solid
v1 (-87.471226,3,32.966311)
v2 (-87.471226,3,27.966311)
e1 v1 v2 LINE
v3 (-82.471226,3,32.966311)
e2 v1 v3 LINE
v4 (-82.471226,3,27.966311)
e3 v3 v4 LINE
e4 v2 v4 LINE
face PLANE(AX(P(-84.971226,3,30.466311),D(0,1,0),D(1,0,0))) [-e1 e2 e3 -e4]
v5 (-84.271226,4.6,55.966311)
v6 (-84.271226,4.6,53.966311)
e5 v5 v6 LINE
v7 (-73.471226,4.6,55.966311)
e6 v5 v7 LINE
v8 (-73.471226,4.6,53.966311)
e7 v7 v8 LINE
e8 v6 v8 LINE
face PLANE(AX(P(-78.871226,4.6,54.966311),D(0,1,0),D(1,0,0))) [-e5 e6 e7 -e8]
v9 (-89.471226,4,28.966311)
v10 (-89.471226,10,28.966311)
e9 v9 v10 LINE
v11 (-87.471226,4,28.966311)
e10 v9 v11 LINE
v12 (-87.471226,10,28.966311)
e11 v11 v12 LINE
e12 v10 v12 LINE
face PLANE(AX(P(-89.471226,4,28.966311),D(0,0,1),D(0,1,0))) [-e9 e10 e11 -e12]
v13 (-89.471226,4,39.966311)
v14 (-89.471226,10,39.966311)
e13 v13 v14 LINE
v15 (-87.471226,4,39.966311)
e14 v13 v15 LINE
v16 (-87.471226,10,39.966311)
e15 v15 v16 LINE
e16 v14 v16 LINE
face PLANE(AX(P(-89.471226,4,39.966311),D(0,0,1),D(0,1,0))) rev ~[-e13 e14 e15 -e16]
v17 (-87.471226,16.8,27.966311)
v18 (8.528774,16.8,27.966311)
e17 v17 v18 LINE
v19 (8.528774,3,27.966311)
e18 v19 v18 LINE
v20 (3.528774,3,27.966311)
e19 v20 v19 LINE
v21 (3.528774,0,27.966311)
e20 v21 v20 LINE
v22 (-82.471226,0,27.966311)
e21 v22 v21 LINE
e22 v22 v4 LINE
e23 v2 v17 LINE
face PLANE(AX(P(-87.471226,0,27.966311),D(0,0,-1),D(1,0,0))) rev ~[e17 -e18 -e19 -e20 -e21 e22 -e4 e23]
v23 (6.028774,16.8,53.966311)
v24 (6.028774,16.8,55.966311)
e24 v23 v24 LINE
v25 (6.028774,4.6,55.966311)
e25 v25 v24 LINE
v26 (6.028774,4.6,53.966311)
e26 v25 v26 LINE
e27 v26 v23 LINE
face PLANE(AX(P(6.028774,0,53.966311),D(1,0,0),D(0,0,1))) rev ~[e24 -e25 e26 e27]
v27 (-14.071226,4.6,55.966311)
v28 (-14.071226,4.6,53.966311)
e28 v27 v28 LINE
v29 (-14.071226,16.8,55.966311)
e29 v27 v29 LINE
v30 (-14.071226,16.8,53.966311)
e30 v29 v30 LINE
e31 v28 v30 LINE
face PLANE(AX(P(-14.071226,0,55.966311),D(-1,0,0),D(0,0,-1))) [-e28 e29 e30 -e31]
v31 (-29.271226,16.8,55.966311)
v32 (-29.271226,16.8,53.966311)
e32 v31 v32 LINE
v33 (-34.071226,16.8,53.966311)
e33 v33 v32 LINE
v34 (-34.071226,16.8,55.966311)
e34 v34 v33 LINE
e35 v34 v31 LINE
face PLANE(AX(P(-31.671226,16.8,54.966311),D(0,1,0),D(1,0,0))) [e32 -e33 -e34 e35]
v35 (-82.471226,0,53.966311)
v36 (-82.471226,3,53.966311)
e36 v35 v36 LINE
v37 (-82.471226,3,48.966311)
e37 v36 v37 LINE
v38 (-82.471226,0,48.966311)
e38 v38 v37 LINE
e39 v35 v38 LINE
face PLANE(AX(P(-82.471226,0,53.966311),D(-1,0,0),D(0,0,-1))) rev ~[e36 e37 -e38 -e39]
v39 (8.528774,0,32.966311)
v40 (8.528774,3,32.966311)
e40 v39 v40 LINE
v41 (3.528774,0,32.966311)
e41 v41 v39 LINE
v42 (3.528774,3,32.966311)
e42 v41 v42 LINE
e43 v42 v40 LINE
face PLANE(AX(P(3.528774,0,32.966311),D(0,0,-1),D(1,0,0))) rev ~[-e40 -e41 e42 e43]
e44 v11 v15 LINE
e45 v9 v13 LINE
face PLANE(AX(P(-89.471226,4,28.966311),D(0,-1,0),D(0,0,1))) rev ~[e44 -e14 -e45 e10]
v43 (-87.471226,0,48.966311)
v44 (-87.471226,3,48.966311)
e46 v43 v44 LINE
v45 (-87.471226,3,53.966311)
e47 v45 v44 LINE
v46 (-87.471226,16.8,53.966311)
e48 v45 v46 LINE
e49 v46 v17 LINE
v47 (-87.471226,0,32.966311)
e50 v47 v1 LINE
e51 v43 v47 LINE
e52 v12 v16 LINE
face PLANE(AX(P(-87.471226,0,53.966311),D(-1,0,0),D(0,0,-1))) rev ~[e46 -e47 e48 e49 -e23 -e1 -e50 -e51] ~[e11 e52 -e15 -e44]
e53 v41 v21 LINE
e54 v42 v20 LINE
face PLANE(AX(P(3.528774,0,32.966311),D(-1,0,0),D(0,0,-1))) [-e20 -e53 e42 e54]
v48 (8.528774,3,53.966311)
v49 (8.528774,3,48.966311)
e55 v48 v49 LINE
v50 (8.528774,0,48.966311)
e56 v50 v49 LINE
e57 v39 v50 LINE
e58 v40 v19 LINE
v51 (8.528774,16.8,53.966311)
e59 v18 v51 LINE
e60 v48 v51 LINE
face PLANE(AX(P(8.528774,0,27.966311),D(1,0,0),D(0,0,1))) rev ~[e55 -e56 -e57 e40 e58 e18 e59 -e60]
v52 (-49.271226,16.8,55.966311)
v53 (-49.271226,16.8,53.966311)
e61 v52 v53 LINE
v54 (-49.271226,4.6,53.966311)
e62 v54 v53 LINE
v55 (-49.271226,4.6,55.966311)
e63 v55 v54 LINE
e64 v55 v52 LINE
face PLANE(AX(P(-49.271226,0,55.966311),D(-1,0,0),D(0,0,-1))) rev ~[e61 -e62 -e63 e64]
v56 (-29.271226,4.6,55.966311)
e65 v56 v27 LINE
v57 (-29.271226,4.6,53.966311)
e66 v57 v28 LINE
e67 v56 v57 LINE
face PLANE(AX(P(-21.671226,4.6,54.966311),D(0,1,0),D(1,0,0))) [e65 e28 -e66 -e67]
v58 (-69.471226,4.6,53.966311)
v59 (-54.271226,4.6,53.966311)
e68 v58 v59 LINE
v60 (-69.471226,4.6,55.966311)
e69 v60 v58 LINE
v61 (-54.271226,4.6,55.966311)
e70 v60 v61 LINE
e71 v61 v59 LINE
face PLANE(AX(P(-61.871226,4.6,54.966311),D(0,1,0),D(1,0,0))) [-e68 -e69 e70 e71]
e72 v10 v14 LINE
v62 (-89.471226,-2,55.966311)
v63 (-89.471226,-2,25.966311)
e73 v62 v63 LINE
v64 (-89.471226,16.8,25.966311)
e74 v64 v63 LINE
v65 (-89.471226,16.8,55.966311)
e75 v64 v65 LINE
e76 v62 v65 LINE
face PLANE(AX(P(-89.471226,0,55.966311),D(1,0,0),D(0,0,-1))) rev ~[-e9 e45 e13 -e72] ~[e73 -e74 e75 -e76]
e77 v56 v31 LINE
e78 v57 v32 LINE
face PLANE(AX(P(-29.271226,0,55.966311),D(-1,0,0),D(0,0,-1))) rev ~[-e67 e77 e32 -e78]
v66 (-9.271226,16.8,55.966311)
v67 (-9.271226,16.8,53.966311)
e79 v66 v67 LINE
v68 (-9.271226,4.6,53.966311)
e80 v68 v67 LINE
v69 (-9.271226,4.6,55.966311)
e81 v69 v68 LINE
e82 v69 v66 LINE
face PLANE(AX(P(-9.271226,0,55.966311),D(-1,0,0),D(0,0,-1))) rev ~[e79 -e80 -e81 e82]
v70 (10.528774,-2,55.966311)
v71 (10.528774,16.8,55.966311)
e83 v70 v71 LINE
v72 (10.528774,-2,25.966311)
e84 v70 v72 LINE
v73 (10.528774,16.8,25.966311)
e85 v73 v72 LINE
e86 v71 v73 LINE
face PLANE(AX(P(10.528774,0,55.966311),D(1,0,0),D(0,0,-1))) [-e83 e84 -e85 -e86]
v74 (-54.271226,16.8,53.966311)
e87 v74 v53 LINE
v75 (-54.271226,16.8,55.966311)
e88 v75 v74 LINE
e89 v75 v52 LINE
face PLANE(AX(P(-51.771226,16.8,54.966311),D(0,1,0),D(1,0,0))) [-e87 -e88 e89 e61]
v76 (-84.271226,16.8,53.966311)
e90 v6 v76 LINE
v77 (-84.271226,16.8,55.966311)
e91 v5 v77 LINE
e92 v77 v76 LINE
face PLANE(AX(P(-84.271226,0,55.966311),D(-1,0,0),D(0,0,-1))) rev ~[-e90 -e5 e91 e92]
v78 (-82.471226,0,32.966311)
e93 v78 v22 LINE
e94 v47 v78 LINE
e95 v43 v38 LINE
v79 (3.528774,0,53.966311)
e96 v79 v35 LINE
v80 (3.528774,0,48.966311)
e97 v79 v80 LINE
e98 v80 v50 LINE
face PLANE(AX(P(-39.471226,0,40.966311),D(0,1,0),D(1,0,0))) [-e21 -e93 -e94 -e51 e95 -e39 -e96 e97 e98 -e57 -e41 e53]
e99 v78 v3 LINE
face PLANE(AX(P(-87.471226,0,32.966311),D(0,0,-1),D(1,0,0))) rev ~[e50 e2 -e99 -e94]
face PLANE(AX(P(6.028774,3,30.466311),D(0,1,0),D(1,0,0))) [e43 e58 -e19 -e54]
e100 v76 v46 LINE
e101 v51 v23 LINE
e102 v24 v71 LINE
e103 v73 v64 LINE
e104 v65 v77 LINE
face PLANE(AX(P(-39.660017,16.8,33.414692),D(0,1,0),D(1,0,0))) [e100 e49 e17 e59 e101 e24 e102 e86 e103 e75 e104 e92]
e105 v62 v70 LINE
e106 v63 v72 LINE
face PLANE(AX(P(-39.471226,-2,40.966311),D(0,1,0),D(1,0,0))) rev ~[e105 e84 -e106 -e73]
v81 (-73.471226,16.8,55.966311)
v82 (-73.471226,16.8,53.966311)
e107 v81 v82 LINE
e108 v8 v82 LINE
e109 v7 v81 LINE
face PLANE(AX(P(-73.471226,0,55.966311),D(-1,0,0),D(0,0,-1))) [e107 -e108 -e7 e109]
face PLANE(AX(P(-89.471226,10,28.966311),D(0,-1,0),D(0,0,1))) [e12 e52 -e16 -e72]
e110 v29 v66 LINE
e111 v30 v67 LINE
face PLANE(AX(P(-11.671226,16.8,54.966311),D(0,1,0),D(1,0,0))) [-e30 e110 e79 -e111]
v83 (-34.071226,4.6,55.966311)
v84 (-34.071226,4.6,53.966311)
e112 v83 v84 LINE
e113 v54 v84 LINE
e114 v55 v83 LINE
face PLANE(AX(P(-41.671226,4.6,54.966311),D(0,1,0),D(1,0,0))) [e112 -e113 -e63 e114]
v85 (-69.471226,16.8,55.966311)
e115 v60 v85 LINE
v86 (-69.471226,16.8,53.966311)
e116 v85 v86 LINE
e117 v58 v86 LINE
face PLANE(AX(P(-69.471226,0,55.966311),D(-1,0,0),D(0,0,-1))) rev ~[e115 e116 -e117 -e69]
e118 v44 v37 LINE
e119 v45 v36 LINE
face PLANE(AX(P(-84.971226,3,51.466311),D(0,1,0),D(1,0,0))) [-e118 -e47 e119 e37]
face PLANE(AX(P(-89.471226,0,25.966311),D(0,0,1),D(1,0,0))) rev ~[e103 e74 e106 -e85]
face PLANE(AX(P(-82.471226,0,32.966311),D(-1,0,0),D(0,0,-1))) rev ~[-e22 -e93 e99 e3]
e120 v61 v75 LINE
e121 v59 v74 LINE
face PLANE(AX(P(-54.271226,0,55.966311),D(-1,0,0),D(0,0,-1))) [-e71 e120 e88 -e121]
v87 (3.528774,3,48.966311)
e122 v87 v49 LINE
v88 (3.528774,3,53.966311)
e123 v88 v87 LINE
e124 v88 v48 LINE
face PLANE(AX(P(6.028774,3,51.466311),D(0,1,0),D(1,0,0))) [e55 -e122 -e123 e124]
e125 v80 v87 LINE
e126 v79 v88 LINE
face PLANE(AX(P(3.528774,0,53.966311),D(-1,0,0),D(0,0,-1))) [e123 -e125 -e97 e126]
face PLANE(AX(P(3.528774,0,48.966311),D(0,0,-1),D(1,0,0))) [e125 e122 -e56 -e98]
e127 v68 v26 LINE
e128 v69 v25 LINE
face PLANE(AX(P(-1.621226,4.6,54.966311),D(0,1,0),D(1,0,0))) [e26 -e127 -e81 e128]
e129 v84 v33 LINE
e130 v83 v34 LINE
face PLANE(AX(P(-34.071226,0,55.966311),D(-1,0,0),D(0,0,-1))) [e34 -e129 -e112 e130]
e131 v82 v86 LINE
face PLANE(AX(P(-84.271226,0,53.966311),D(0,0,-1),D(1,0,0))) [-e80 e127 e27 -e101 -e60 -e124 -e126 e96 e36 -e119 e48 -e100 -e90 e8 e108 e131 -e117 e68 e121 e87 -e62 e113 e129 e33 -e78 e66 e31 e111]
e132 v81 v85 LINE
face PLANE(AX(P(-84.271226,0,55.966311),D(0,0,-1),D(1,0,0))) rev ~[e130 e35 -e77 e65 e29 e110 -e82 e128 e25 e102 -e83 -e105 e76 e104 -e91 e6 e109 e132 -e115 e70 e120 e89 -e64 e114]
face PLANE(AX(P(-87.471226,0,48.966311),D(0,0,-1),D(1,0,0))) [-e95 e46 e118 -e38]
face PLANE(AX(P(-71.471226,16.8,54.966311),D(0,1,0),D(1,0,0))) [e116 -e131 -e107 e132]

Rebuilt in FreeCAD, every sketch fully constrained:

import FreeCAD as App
import Part
import Sketcher

doc = App.newDocument("Part")
body = doc.addObject("PartDesign::Body", "Body")

# Sketch on XZ plane
sketch1 = body.newObject("Sketcher::SketchObject", "Sketch")
sketch1.AttachmentSupport = (doc.getObject("XZ_Plane"), [""])
sketch1.MapMode = "FlatFace"
sketch1.addGeometry(Part.LineSegment(App.Vector(-87.5, 28, 0), App.Vector(8.5, 28, 0)), False)
sketch1.addGeometry(Part.LineSegment(App.Vector(8.5, 28, 0), App.Vector(8.5, 54, 0)), False)
sketch1.addGeometry(Part.LineSegment(App.Vector(8.5, 54, 0), App.Vector(6, 54, 0)), False)
sketch1.addGeometry(Part.LineSegment(App.Vector(6, 54, 0), App.Vector(6, 56, 0)), False)
sketch1.addGeometry(Part.LineSegment(App.Vector(6, 56, 0), App.Vector(10.5, 56, 0)), False)
sketch1.addGeometry(Part.LineSegment(App.Vector(10.5, 56, 0), App.Vector(10.5, 26, 0)), False)
sketch1.addGeometry(Part.LineSegment(App.Vector(10.5, 26, 0), App.Vector(-89.5, 26, 0)), False)
sketch1.addGeometry(Part.LineSegment(App.Vector(-89.5, 26, 0), App.Vector(-89.5, 56, 0)), False)
sketch1.addGeometry(Part.LineSegment(App.Vector(-89.5, 56, 0), App.Vector(-84.3, 56, 0)), False)
sketch1.addGeometry(Part.LineSegment(App.Vector(-84.3, 56, 0), App.Vector(-84.3, 54, 0)), False)
sketch1.addGeometry(Part.LineSegment(App.Vector(-84.3, 54, 0), App.Vector(-87.5, 54, 0)), False)
sketch1.addGeometry(Part.LineSegment(App.Vector(-87.5, 54, 0), App.Vector(-87.5, 28, 0)), False)
sketch1.addConstraint(Sketcher.Constraint("Coincident", 0, 2, 1, 1))
sketch1.addConstraint(Sketcher.Constraint("Coincident", 1, 2, 2, 1))
sketch1.addConstraint(Sketcher.Constraint("Coincident", 2, 2, 3, 1))
sketch1.addConstraint(Sketcher.Constraint("Coincident", 3, 2, 4, 1))
sketch1.addConstraint(Sketcher.Constraint("Coincident", 4, 2, 5, 1))
sketch1.addConstraint(Sketcher.Constraint("Coincident", 5, 2, 6, 1))
sketch1.addConstraint(Sketcher.Constraint("Coincident", 6, 2, 7, 1))
sketch1.addConstraint(Sketcher.Constraint("Coincident", 7, 2, 8, 1))
sketch1.addConstraint(Sketcher.Constraint("Coincident", 8, 2, 9, 1))
sketch1.addConstraint(Sketcher.Constraint("Coincident", 9, 2, 10, 1))
sketch1.addConstraint(Sketcher.Constraint("Coincident", 10, 2, 11, 1))
sketch1.addConstraint(Sketcher.Constraint("Coincident", 11, 2, 0, 1))
sketch1.addConstraint(Sketcher.Constraint("Horizontal", 0))
sketch1.addConstraint(Sketcher.Constraint("Vertical", 1))
sketch1.addConstraint(Sketcher.Constraint("Horizontal", 2))
sketch1.addConstraint(Sketcher.Constraint("Vertical", 3))
sketch1.addConstraint(Sketcher.Constraint("Horizontal", 4))
sketch1.addConstraint(Sketcher.Constraint("Vertical", 5))
sketch1.addConstraint(Sketcher.Constraint("Horizontal", 6))
sketch1.addConstraint(Sketcher.Constraint("Vertical", 7))
sketch1.addConstraint(Sketcher.Constraint("Horizontal", 8))
sketch1.addConstraint(Sketcher.Constraint("Vertical", 9))
sketch1.addConstraint(Sketcher.Constraint("Horizontal", 10))
sketch1.addConstraint(Sketcher.Constraint("Vertical", 11))
sketch1.addConstraint(Sketcher.Constraint("Horizontal", 4, 2, 7, 2))
sketch1.addConstraint(Sketcher.Constraint("Horizontal", 2, 2, 9, 2))
sketch1.addConstraint(Sketcher.Constraint("DistanceX", 0, 1, 0, 2, 96.0))
sketch1.addConstraint(Sketcher.Constraint("DistanceX", 6, 2, 6, 1, 100.0))
sketch1.addConstraint(Sketcher.Constraint("DistanceY", 1, 1, 1, 2, 26.0))
sketch1.addConstraint(Sketcher.Constraint("DistanceY", 3, 1, 3, 2, 2.0))
sketch1.addConstraint(Sketcher.Constraint("DistanceY", 5, 2, 5, 1, 30.0))
sketch1.addConstraint(Sketcher.Constraint("DistanceX", 2, 2, 2, 1, 2.5))
sketch1.addConstraint(Sketcher.Constraint("DistanceX", 4, 1, 4, 2, 4.5))
sketch1.addConstraint(Sketcher.Constraint("DistanceX", 8, 1, 8, 2, 5.2))
sketch1.addConstraint(Sketcher.Constraint("DistanceY", -1, 1, 0, 2, 27.966311))
sketch1.addConstraint(Sketcher.Constraint("DistanceX", -1, 1, 0, 2, 8.528774))
pad1 = body.newObject("PartDesign::Pad", "Pad")
pad1.Profile = sketch1
pad1.Length = 16.8
pad1.Reversed = True
body2 = doc.addObject("PartDesign::Body", "Body001")

# Sketch on XZ plane
sketch2 = body2.newObject("Sketcher::SketchObject", "Sketch001")
sketch2.AttachmentSupport = (doc.getObject("XZ_Plane001"), [""])
sketch2.MapMode = "FlatFace"
sketch2.addGeometry(Part.LineSegment(App.Vector(-73.5, 54, 0), App.Vector(-73.5, 56, 0)), False)
sketch2.addGeometry(Part.LineSegment(App.Vector(-73.5, 56, 0), App.Vector(-69.5, 56, 0)), False)
sketch2.addGeometry(Part.LineSegment(App.Vector(-69.5, 56, 0), App.Vector(-69.5, 54, 0)), False)
sketch2.addGeometry(Part.LineSegment(App.Vector(-69.5, 54, 0), App.Vector(-73.5, 54, 0)), False)
sketch2.addConstraint(Sketcher.Constraint("Coincident", 0, 2, 1, 1))
sketch2.addConstraint(Sketcher.Constraint("Coincident", 1, 2, 2, 1))
sketch2.addConstraint(Sketcher.Constraint("Coincident", 2, 2, 3, 1))
sketch2.addConstraint(Sketcher.Constraint("Coincident", 3, 2, 0, 1))
sketch2.addConstraint(Sketcher.Constraint("Vertical", 0))
sketch2.addConstraint(Sketcher.Constraint("Horizontal", 1))
sketch2.addConstraint(Sketcher.Constraint("Vertical", 2))
sketch2.addConstraint(Sketcher.Constraint("Horizontal", 3))
sketch2.addConstraint(Sketcher.Constraint("DistanceX", 1, 1, 1, 2, 4.0))
sketch2.addConstraint(Sketcher.Constraint("DistanceY", 0, 1, 0, 2, 2.0))
sketch2.addConstraint(Sketcher.Constraint("DistanceY", -1, 1, 0, 2, 55.966311))
sketch2.addConstraint(Sketcher.Constraint("DistanceX", 0, 2, -1, 1, 73.471226))
pad2 = body2.newObject("PartDesign::Pad", "Pad001")
pad2.Profile = sketch2
pad2.Length = 16.8
pad2.Reversed = True
body3 = doc.addObject("PartDesign::Body", "Body002")

# Sketch on XZ plane
sketch3 = body3.newObject("Sketcher::SketchObject", "Sketch002")
sketch3.AttachmentSupport = (doc.getObject("XZ_Plane002"), [""])
sketch3.MapMode = "FlatFace"
sketch3.addGeometry(Part.LineSegment(App.Vector(-54.3, 54, 0), App.Vector(-54.3, 56, 0)), False)
sketch3.addGeometry(Part.LineSegment(App.Vector(-54.3, 56, 0), App.Vector(-49.3, 56, 0)), False)
sketch3.addGeometry(Part.LineSegment(App.Vector(-49.3, 56, 0), App.Vector(-49.3, 54, 0)), False)
sketch3.addGeometry(Part.LineSegment(App.Vector(-49.3, 54, 0), App.Vector(-54.3, 54, 0)), False)
sketch3.addConstraint(Sketcher.Constraint("Coincident", 0, 2, 1, 1))
sketch3.addConstraint(Sketcher.Constraint("Coincident", 1, 2, 2, 1))
sketch3.addConstraint(Sketcher.Constraint("Coincident", 2, 2, 3, 1))
sketch3.addConstraint(Sketcher.Constraint("Coincident", 3, 2, 0, 1))
sketch3.addConstraint(Sketcher.Constraint("Vertical", 0))
sketch3.addConstraint(Sketcher.Constraint("Horizontal", 1))
sketch3.addConstraint(Sketcher.Constraint("Vertical", 2))
sketch3.addConstraint(Sketcher.Constraint("Horizontal", 3))
sketch3.addConstraint(Sketcher.Constraint("DistanceX", 1, 1, 1, 2, 5.0))
sketch3.addConstraint(Sketcher.Constraint("DistanceY", 0, 1, 0, 2, 2.0))
sketch3.addConstraint(Sketcher.Constraint("DistanceY", -1, 1, 0, 2, 55.966311))
sketch3.addConstraint(Sketcher.Constraint("DistanceX", 0, 2, -1, 1, 54.271226))
pad3 = body3.newObject("PartDesign::Pad", "Pad002")
pad3.Profile = sketch3
pad3.Length = 16.8
pad3.Reversed = True
body4 = doc.addObject("PartDesign::Body", "Body003")

# Sketch on XZ plane
sketch4 = body4.newObject("Sketcher::SketchObject", "Sketch003")
sketch4.AttachmentSupport = (doc.getObject("XZ_Plane003"), [""])
sketch4.MapMode = "FlatFace"
sketch4.addGeometry(Part.LineSegment(App.Vector(-34.1, 54, 0), App.Vector(-34.1, 56, 0)), False)
sketch4.addGeometry(Part.LineSegment(App.Vector(-34.1, 56, 0), App.Vector(-29.3, 56, 0)), False)
sketch4.addGeometry(Part.LineSegment(App.Vector(-29.3, 56, 0), App.Vector(-29.3, 54, 0)), False)
sketch4.addGeometry(Part.LineSegment(App.Vector(-29.3, 54, 0), App.Vector(-34.1, 54, 0)), False)
sketch4.addConstraint(Sketcher.Constraint("Coincident", 0, 2, 1, 1))
sketch4.addConstraint(Sketcher.Constraint("Coincident", 1, 2, 2, 1))
sketch4.addConstraint(Sketcher.Constraint("Coincident", 2, 2, 3, 1))
sketch4.addConstraint(Sketcher.Constraint("Coincident", 3, 2, 0, 1))
sketch4.addConstraint(Sketcher.Constraint("Vertical", 0))
sketch4.addConstraint(Sketcher.Constraint("Horizontal", 1))
sketch4.addConstraint(Sketcher.Constraint("Vertical", 2))
sketch4.addConstraint(Sketcher.Constraint("Horizontal", 3))
sketch4.addConstraint(Sketcher.Constraint("DistanceY", 0, 1, 0, 2, 2.0))
sketch4.addConstraint(Sketcher.Constraint("DistanceX", 1, 1, 1, 2, 4.8))
sketch4.addConstraint(Sketcher.Constraint("DistanceY", -1, 1, 0, 2, 55.966311))
sketch4.addConstraint(Sketcher.Constraint("DistanceX", 0, 2, -1, 1, 34.071226))
pad4 = body4.newObject("PartDesign::Pad", "Pad003")
pad4.Profile = sketch4
pad4.Length = 16.8
pad4.Reversed = True
body5 = doc.addObject("PartDesign::Body", "Body004")

# Sketch on XZ plane
sketch5 = body5.newObject("Sketcher::SketchObject", "Sketch004")
sketch5.AttachmentSupport = (doc.getObject("XZ_Plane004"), [""])
sketch5.MapMode = "FlatFace"
sketch5.addGeometry(Part.LineSegment(App.Vector(-14.1, 54, 0), App.Vector(-14.1, 56, 0)), False)
sketch5.addGeometry(Part.LineSegment(App.Vector(-14.1, 56, 0), App.Vector(-9.3, 56, 0)), False)
sketch5.addGeometry(Part.LineSegment(App.Vector(-9.3, 56, 0), App.Vector(-9.3, 54, 0)), False)
sketch5.addGeometry(Part.LineSegment(App.Vector(-9.3, 54, 0), App.Vector(-14.1, 54, 0)), False)
sketch5.addConstraint(Sketcher.Constraint("Coincident", 0, 2, 1, 1))
sketch5.addConstraint(Sketcher.Constraint("Coincident", 1, 2, 2, 1))
sketch5.addConstraint(Sketcher.Constraint("Coincident", 2, 2, 3, 1))
sketch5.addConstraint(Sketcher.Constraint("Coincident", 3, 2, 0, 1))
sketch5.addConstraint(Sketcher.Constraint("Vertical", 0))
sketch5.addConstraint(Sketcher.Constraint("Horizontal", 1))
sketch5.addConstraint(Sketcher.Constraint("Vertical", 2))
sketch5.addConstraint(Sketcher.Constraint("Horizontal", 3))
sketch5.addConstraint(Sketcher.Constraint("DistanceY", 0, 1, 0, 2, 2.0))
sketch5.addConstraint(Sketcher.Constraint("DistanceX", 1, 1, 1, 2, 4.8))
sketch5.addConstraint(Sketcher.Constraint("DistanceY", -1, 1, 0, 2, 55.966311))
sketch5.addConstraint(Sketcher.Constraint("DistanceX", 0, 2, -1, 1, 14.071226))
pad5 = body5.newObject("PartDesign::Pad", "Pad004")
pad5.Profile = sketch5
pad5.Length = 16.8
pad5.Reversed = True
body.AllowCompound = True
doc.recompute()

boolean = body.newObject("PartDesign::Boolean", "Boolean")
boolean.Type = "Fuse"
boolean.addObjects([body2])
doc.recompute()

boolean2 = body.newObject("PartDesign::Boolean", "Boolean001")
boolean2.Type = "Fuse"
boolean2.addObjects([body3])
doc.recompute()

boolean3 = body.newObject("PartDesign::Boolean", "Boolean002")
boolean3.Type = "Fuse"
boolean3.addObjects([body4])
doc.recompute()

boolean4 = body.newObject("PartDesign::Boolean", "Boolean003")
boolean4.Type = "Fuse"
boolean4.addObjects([body5])

# Sketch on XZ plane
sketch6 = body.newObject("Sketcher::SketchObject", "Sketch005")
sketch6.AttachmentSupport = (doc.getObject("XZ_Plane"), [""])
sketch6.MapMode = "FlatFace"
sketch6.addGeometry(Part.LineSegment(App.Vector(-89, 26, 0), App.Vector(-89, 56, 0)), False)
sketch6.addGeometry(Part.LineSegment(App.Vector(-89, 56, 0), App.Vector(11, 56, 0)), False)
sketch6.addGeometry(Part.LineSegment(App.Vector(11, 56, 0), App.Vector(11, 26, 0)), False)
sketch6.addGeometry(Part.LineSegment(App.Vector(11, 26, 0), App.Vector(-89, 26, 0)), False)
sketch6.addConstraint(Sketcher.Constraint("Coincident", 0, 2, 1, 1))
sketch6.addConstraint(Sketcher.Constraint("Coincident", 1, 2, 2, 1))
sketch6.addConstraint(Sketcher.Constraint("Coincident", 2, 2, 3, 1))
sketch6.addConstraint(Sketcher.Constraint("Coincident", 3, 2, 0, 1))
sketch6.addConstraint(Sketcher.Constraint("Vertical", 0))
sketch6.addConstraint(Sketcher.Constraint("Horizontal", 1))
sketch6.addConstraint(Sketcher.Constraint("Vertical", 2))
sketch6.addConstraint(Sketcher.Constraint("Horizontal", 3))
sketch6.addConstraint(Sketcher.Constraint("DistanceX", 1, 1, 1, 2, 100.0))
sketch6.addConstraint(Sketcher.Constraint("DistanceY", 0, 1, 0, 2, 30.0))
sketch6.addConstraint(Sketcher.Constraint("DistanceY", -1, 1, 0, 2, 55.966311))
sketch6.addConstraint(Sketcher.Constraint("DistanceX", 0, 2, -1, 1, 89.471226))
pad6 = body.newObject("PartDesign::Pad", "Pad005")
pad6.Profile = sketch6
pad6.Length = 2

# Sketch on XZ plane
sketch7 = body.newObject("Sketcher::SketchObject", "Sketch006")
sketch7.AttachmentSupport = (doc.getObject("XZ_Plane"), [""])
sketch7.MapMode = "FlatFace"
sketch7.addGeometry(Part.LineSegment(App.Vector(-84.3, 54, 0), App.Vector(-84.3, 56, 0)), False)
sketch7.addGeometry(Part.LineSegment(App.Vector(-84.3, 56, 0), App.Vector(-73.5, 56, 0)), False)
sketch7.addGeometry(Part.LineSegment(App.Vector(-73.5, 56, 0), App.Vector(-73.5, 54, 0)), False)
sketch7.addGeometry(Part.LineSegment(App.Vector(-73.5, 54, 0), App.Vector(-84.3, 54, 0)), False)
sketch7.addGeometry(Part.LineSegment(App.Vector(-69.5, 54, 0), App.Vector(-69.5, 56, 0)), False)
sketch7.addGeometry(Part.LineSegment(App.Vector(-69.5, 56, 0), App.Vector(-54.3, 56, 0)), False)
sketch7.addGeometry(Part.LineSegment(App.Vector(-54.3, 56, 0), App.Vector(-54.3, 54, 0)), False)
sketch7.addGeometry(Part.LineSegment(App.Vector(-54.3, 54, 0), App.Vector(-69.5, 54, 0)), False)
sketch7.addGeometry(Part.LineSegment(App.Vector(-49.3, 54, 0), App.Vector(-49.3, 56, 0)), False)
sketch7.addGeometry(Part.LineSegment(App.Vector(-49.3, 56, 0), App.Vector(-34.1, 56, 0)), False)
sketch7.addGeometry(Part.LineSegment(App.Vector(-34.1, 56, 0), App.Vector(-34.1, 54, 0)), False)
sketch7.addGeometry(Part.LineSegment(App.Vector(-34.1, 54, 0), App.Vector(-49.3, 54, 0)), False)
sketch7.addGeometry(Part.LineSegment(App.Vector(-29.3, 54, 0), App.Vector(-29.3, 56, 0)), False)
sketch7.addGeometry(Part.LineSegment(App.Vector(-29.3, 56, 0), App.Vector(-14.1, 56, 0)), False)
sketch7.addGeometry(Part.LineSegment(App.Vector(-14.1, 56, 0), App.Vector(-14.1, 54, 0)), False)
sketch7.addGeometry(Part.LineSegment(App.Vector(-14.1, 54, 0), App.Vector(-29.3, 54, 0)), False)
sketch7.addGeometry(Part.LineSegment(App.Vector(-9.3, 54, 0), App.Vector(-9.3, 56, 0)), False)
sketch7.addGeometry(Part.LineSegment(App.Vector(-9.3, 56, 0), App.Vector(6, 56, 0)), False)
sketch7.addGeometry(Part.LineSegment(App.Vector(6, 56, 0), App.Vector(6, 54, 0)), False)
sketch7.addGeometry(Part.LineSegment(App.Vector(6, 54, 0), App.Vector(-9.3, 54, 0)), False)
sketch7.addConstraint(Sketcher.Constraint("Coincident", 0, 2, 1, 1))
sketch7.addConstraint(Sketcher.Constraint("Coincident", 1, 2, 2, 1))
sketch7.addConstraint(Sketcher.Constraint("Coincident", 2, 2, 3, 1))
sketch7.addConstraint(Sketcher.Constraint("Coincident", 3, 2, 0, 1))
sketch7.addConstraint(Sketcher.Constraint("Coincident", 4, 2, 5, 1))
sketch7.addConstraint(Sketcher.Constraint("Coincident", 5, 2, 6, 1))
sketch7.addConstraint(Sketcher.Constraint("Coincident", 6, 2, 7, 1))
sketch7.addConstraint(Sketcher.Constraint("Coincident", 7, 2, 4, 1))
sketch7.addConstraint(Sketcher.Constraint("Coincident", 8, 2, 9, 1))
sketch7.addConstraint(Sketcher.Constraint("Coincident", 9, 2, 10, 1))
sketch7.addConstraint(Sketcher.Constraint("Coincident", 10, 2, 11, 1))
sketch7.addConstraint(Sketcher.Constraint("Coincident", 11, 2, 8, 1))
sketch7.addConstraint(Sketcher.Constraint("Coincident", 12, 2, 13, 1))
sketch7.addConstraint(Sketcher.Constraint("Coincident", 13, 2, 14, 1))
sketch7.addConstraint(Sketcher.Constraint("Coincident", 14, 2, 15, 1))
sketch7.addConstraint(Sketcher.Constraint("Coincident", 15, 2, 12, 1))
sketch7.addConstraint(Sketcher.Constraint("Coincident", 16, 2, 17, 1))
sketch7.addConstraint(Sketcher.Constraint("Coincident", 17, 2, 18, 1))
sketch7.addConstraint(Sketcher.Constraint("Coincident", 18, 2, 19, 1))
sketch7.addConstraint(Sketcher.Constraint("Coincident", 19, 2, 16, 1))
sketch7.addConstraint(Sketcher.Constraint("Vertical", 0))
sketch7.addConstraint(Sketcher.Constraint("Horizontal", 1))
sketch7.addConstraint(Sketcher.Constraint("Vertical", 2))
sketch7.addConstraint(Sketcher.Constraint("Horizontal", 3))
sketch7.addConstraint(Sketcher.Constraint("Vertical", 4))
sketch7.addConstraint(Sketcher.Constraint("Horizontal", 5))
sketch7.addConstraint(Sketcher.Constraint("Vertical", 6))
sketch7.addConstraint(Sketcher.Constraint("Horizontal", 7))
sketch7.addConstraint(Sketcher.Constraint("Vertical", 8))
sketch7.addConstraint(Sketcher.Constraint("Horizontal", 9))
sketch7.addConstraint(Sketcher.Constraint("Vertical", 10))
sketch7.addConstraint(Sketcher.Constraint("Horizontal", 11))
sketch7.addConstraint(Sketcher.Constraint("Vertical", 12))
sketch7.addConstraint(Sketcher.Constraint("Horizontal", 13))
sketch7.addConstraint(Sketcher.Constraint("Vertical", 14))
sketch7.addConstraint(Sketcher.Constraint("Horizontal", 15))
sketch7.addConstraint(Sketcher.Constraint("Vertical", 16))
sketch7.addConstraint(Sketcher.Constraint("Horizontal", 17))
sketch7.addConstraint(Sketcher.Constraint("Vertical", 18))
sketch7.addConstraint(Sketcher.Constraint("Horizontal", 19))
sketch7.addConstraint(Sketcher.Constraint("Horizontal", 1, 2, 4, 2))
sketch7.addConstraint(Sketcher.Constraint("Horizontal", 3, 2, 6, 2))
sketch7.addConstraint(Sketcher.Constraint("Horizontal", 5, 2, 8, 2))
sketch7.addConstraint(Sketcher.Constraint("Horizontal", 7, 2, 10, 2))
sketch7.addConstraint(Sketcher.Constraint("Horizontal", 9, 2, 12, 2))
sketch7.addConstraint(Sketcher.Constraint("Horizontal", 11, 2, 14, 2))
sketch7.addConstraint(Sketcher.Constraint("Horizontal", 13, 2, 16, 2))
sketch7.addConstraint(Sketcher.Constraint("Horizontal", 15, 2, 18, 2))
sketch7.addConstraint(Sketcher.Constraint("Equal", 7, 9))
sketch7.addConstraint(Sketcher.Constraint("Equal", 11, 13))
sketch7.addConstraint(Sketcher.Constraint("DistanceY", 0, 1, 0, 2, 2.0))
sketch7.addConstraint(Sketcher.Constraint("DistanceX", 1, 1, 1, 2, 10.8))
sketch7.addConstraint(Sketcher.Constraint("DistanceX", 5, 1, 5, 2, 15.2))
sketch7.addConstraint(Sketcher.Constraint("DistanceX", 17, 1, 17, 2, 15.3))
sketch7.addConstraint(Sketcher.Constraint("DistanceX", 1, 2, 4, 2, 4.0))
sketch7.addConstraint(Sketcher.Constraint("DistanceX", 5, 2, 8, 2, 5.0))
sketch7.addConstraint(Sketcher.Constraint("DistanceX", 8, 2, 12, 2, 20.0))
sketch7.addConstraint(Sketcher.Constraint("DistanceX", 12, 2, 16, 2, 20.0))
sketch7.addConstraint(Sketcher.Constraint("DistanceY", -1, 1, 0, 2, 55.966311))
sketch7.addConstraint(Sketcher.Constraint("DistanceX", 0, 2, -1, 1, 84.271226))
pad7 = body.newObject("PartDesign::Pad", "Pad006")
pad7.Profile = sketch7
pad7.Length = 4.6
pad7.Reversed = True

# Sketch on XZ plane
sketch8 = body.newObject("Sketcher::SketchObject", "Sketch007")
sketch8.AttachmentSupport = (doc.getObject("XZ_Plane"), [""])
sketch8.MapMode = "FlatFace"
sketch8.addGeometry(Part.LineSegment(App.Vector(-87, 28, 0), App.Vector(-87, 33, 0)), False)
sketch8.addGeometry(Part.LineSegment(App.Vector(-87, 33, 0), App.Vector(-82, 33, 0)), False)
sketch8.addGeometry(Part.LineSegment(App.Vector(-82, 33, 0), App.Vector(-82, 28, 0)), False)
sketch8.addGeometry(Part.LineSegment(App.Vector(-82, 28, 0), App.Vector(-87, 28, 0)), False)
sketch8.addGeometry(Part.LineSegment(App.Vector(4, 28, 0), App.Vector(4, 33, 0)), False)
sketch8.addGeometry(Part.LineSegment(App.Vector(4, 33, 0), App.Vector(9, 33, 0)), False)
sketch8.addGeometry(Part.LineSegment(App.Vector(9, 33, 0), App.Vector(9, 28, 0)), False)
sketch8.addGeometry(Part.LineSegment(App.Vector(9, 28, 0), App.Vector(4, 28, 0)), False)
sketch8.addGeometry(Part.LineSegment(App.Vector(4, 49, 0), App.Vector(4, 54, 0)), False)
sketch8.addGeometry(Part.LineSegment(App.Vector(4, 54, 0), App.Vector(9, 54, 0)), False)
sketch8.addGeometry(Part.LineSegment(App.Vector(9, 54, 0), App.Vector(9, 49, 0)), False)
sketch8.addGeometry(Part.LineSegment(App.Vector(9, 49, 0), App.Vector(4, 49, 0)), False)
sketch8.addGeometry(Part.LineSegment(App.Vector(-87, 49, 0), App.Vector(-87, 54, 0)), False)
sketch8.addGeometry(Part.LineSegment(App.Vector(-87, 54, 0), App.Vector(-82, 54, 0)), False)
sketch8.addGeometry(Part.LineSegment(App.Vector(-82, 54, 0), App.Vector(-82, 49, 0)), False)
sketch8.addGeometry(Part.LineSegment(App.Vector(-82, 49, 0), App.Vector(-87, 49, 0)), False)
sketch8.addConstraint(Sketcher.Constraint("Coincident", 0, 2, 1, 1))
sketch8.addConstraint(Sketcher.Constraint("Coincident", 1, 2, 2, 1))
sketch8.addConstraint(Sketcher.Constraint("Coincident", 2, 2, 3, 1))
sketch8.addConstraint(Sketcher.Constraint("Coincident", 3, 2, 0, 1))
sketch8.addConstraint(Sketcher.Constraint("Coincident", 4, 2, 5, 1))
sketch8.addConstraint(Sketcher.Constraint("Coincident", 5, 2, 6, 1))
sketch8.addConstraint(Sketcher.Constraint("Coincident", 6, 2, 7, 1))
sketch8.addConstraint(Sketcher.Constraint("Coincident", 7, 2, 4, 1))
sketch8.addConstraint(Sketcher.Constraint("Coincident", 8, 2, 9, 1))
sketch8.addConstraint(Sketcher.Constraint("Coincident", 9, 2, 10, 1))
sketch8.addConstraint(Sketcher.Constraint("Coincident", 10, 2, 11, 1))
sketch8.addConstraint(Sketcher.Constraint("Coincident", 11, 2, 8, 1))
sketch8.addConstraint(Sketcher.Constraint("Coincident", 12, 2, 13, 1))
sketch8.addConstraint(Sketcher.Constraint("Coincident", 13, 2, 14, 1))
sketch8.addConstraint(Sketcher.Constraint("Coincident", 14, 2, 15, 1))
sketch8.addConstraint(Sketcher.Constraint("Coincident", 15, 2, 12, 1))
sketch8.addConstraint(Sketcher.Constraint("Vertical", 0))
sketch8.addConstraint(Sketcher.Constraint("Horizontal", 1))
sketch8.addConstraint(Sketcher.Constraint("Vertical", 2))
sketch8.addConstraint(Sketcher.Constraint("Horizontal", 3))
sketch8.addConstraint(Sketcher.Constraint("Vertical", 4))
sketch8.addConstraint(Sketcher.Constraint("Horizontal", 5))
sketch8.addConstraint(Sketcher.Constraint("Vertical", 6))
sketch8.addConstraint(Sketcher.Constraint("Horizontal", 7))
sketch8.addConstraint(Sketcher.Constraint("Vertical", 8))
sketch8.addConstraint(Sketcher.Constraint("Horizontal", 9))
sketch8.addConstraint(Sketcher.Constraint("Vertical", 10))
sketch8.addConstraint(Sketcher.Constraint("Horizontal", 11))
sketch8.addConstraint(Sketcher.Constraint("Vertical", 12))
sketch8.addConstraint(Sketcher.Constraint("Horizontal", 13))
sketch8.addConstraint(Sketcher.Constraint("Vertical", 14))
sketch8.addConstraint(Sketcher.Constraint("Horizontal", 15))
sketch8.addConstraint(Sketcher.Constraint("Horizontal", 1, 2, 4, 2))
sketch8.addConstraint(Sketcher.Constraint("Horizontal", 3, 2, 6, 2))
sketch8.addConstraint(Sketcher.Constraint("Horizontal", 9, 2, 12, 2))
sketch8.addConstraint(Sketcher.Constraint("Horizontal", 11, 2, 14, 2))
sketch8.addConstraint(Sketcher.Constraint("Vertical", 7, 2, 8, 2))
sketch8.addConstraint(Sketcher.Constraint("Vertical", 6, 2, 9, 2))
sketch8.addConstraint(Sketcher.Constraint("Vertical", 3, 2, 12, 2))
sketch8.addConstraint(Sketcher.Constraint("Vertical", 2, 2, 13, 2))
sketch8.addConstraint(Sketcher.Constraint("Equal", 3, 5))
sketch8.addConstraint(Sketcher.Constraint("Equal", 15, 0))
sketch8.addConstraint(Sketcher.Constraint("Equal", 6, 8))
sketch8.addConstraint(Sketcher.Constraint("DistanceX", 1, 1, 1, 2, 5.0))
sketch8.addConstraint(Sketcher.Constraint("DistanceX", 1, 2, 4, 2, 86.0))
sketch8.addConstraint(Sketcher.Constraint("DistanceY", 4, 2, 8, 2, 21.0))
sketch8.addConstraint(Sketcher.Constraint("DistanceY", -1, 1, 0, 2, 32.966311))
sketch8.addConstraint(Sketcher.Constraint("DistanceX", 0, 2, -1, 1, 87.471226))
pad8 = body.newObject("PartDesign::Pad", "Pad007")
pad8.Profile = sketch8
pad8.Length = 3
pad8.Reversed = True

# Sketch on YZ plane
sketch9 = body.newObject("Sketcher::SketchObject", "Sketch008")
sketch9.AttachmentSupport = (doc.getObject("YZ_Plane"), [""])
sketch9.MapMode = "FlatFace"
sketch9.AttachmentOffset = App.Placement(App.Vector(0, 0, -89.471226), App.Rotation())
sketch9.addGeometry(Part.LineSegment(App.Vector(10, 29, 0), App.Vector(4, 29, 0)), False)
sketch9.addGeometry(Part.LineSegment(App.Vector(4, 29, 0), App.Vector(4, 40, 0)), False)
sketch9.addGeometry(Part.LineSegment(App.Vector(4, 40, 0), App.Vector(10, 40, 0)), False)
sketch9.addGeometry(Part.LineSegment(App.Vector(10, 40, 0), App.Vector(10, 29, 0)), False)
sketch9.addConstraint(Sketcher.Constraint("Coincident", 0, 2, 1, 1))
sketch9.addConstraint(Sketcher.Constraint("Coincident", 1, 2, 2, 1))
sketch9.addConstraint(Sketcher.Constraint("Coincident", 2, 2, 3, 1))
sketch9.addConstraint(Sketcher.Constraint("Coincident", 3, 2, 0, 1))
sketch9.addConstraint(Sketcher.Constraint("Horizontal", 0))
sketch9.addConstraint(Sketcher.Constraint("Vertical", 1))
sketch9.addConstraint(Sketcher.Constraint("Horizontal", 2))
sketch9.addConstraint(Sketcher.Constraint("Vertical", 3))
sketch9.addConstraint(Sketcher.Constraint("DistanceX", 0, 2, 0, 1, 6.0))
sketch9.addConstraint(Sketcher.Constraint("DistanceY", 1, 1, 1, 2, 11.0))
sketch9.addConstraint(Sketcher.Constraint("DistanceX", -1, 1, 0, 2, 4.0))
sketch9.addConstraint(Sketcher.Constraint("DistanceY", -1, 1, 0, 2, 28.966311))
pocket1 = body.newObject("PartDesign::Pocket", "Pocket")
pocket1.Profile = sketch9
pocket1.Length = 4
pocket1.Reversed = True

doc.recompute()
